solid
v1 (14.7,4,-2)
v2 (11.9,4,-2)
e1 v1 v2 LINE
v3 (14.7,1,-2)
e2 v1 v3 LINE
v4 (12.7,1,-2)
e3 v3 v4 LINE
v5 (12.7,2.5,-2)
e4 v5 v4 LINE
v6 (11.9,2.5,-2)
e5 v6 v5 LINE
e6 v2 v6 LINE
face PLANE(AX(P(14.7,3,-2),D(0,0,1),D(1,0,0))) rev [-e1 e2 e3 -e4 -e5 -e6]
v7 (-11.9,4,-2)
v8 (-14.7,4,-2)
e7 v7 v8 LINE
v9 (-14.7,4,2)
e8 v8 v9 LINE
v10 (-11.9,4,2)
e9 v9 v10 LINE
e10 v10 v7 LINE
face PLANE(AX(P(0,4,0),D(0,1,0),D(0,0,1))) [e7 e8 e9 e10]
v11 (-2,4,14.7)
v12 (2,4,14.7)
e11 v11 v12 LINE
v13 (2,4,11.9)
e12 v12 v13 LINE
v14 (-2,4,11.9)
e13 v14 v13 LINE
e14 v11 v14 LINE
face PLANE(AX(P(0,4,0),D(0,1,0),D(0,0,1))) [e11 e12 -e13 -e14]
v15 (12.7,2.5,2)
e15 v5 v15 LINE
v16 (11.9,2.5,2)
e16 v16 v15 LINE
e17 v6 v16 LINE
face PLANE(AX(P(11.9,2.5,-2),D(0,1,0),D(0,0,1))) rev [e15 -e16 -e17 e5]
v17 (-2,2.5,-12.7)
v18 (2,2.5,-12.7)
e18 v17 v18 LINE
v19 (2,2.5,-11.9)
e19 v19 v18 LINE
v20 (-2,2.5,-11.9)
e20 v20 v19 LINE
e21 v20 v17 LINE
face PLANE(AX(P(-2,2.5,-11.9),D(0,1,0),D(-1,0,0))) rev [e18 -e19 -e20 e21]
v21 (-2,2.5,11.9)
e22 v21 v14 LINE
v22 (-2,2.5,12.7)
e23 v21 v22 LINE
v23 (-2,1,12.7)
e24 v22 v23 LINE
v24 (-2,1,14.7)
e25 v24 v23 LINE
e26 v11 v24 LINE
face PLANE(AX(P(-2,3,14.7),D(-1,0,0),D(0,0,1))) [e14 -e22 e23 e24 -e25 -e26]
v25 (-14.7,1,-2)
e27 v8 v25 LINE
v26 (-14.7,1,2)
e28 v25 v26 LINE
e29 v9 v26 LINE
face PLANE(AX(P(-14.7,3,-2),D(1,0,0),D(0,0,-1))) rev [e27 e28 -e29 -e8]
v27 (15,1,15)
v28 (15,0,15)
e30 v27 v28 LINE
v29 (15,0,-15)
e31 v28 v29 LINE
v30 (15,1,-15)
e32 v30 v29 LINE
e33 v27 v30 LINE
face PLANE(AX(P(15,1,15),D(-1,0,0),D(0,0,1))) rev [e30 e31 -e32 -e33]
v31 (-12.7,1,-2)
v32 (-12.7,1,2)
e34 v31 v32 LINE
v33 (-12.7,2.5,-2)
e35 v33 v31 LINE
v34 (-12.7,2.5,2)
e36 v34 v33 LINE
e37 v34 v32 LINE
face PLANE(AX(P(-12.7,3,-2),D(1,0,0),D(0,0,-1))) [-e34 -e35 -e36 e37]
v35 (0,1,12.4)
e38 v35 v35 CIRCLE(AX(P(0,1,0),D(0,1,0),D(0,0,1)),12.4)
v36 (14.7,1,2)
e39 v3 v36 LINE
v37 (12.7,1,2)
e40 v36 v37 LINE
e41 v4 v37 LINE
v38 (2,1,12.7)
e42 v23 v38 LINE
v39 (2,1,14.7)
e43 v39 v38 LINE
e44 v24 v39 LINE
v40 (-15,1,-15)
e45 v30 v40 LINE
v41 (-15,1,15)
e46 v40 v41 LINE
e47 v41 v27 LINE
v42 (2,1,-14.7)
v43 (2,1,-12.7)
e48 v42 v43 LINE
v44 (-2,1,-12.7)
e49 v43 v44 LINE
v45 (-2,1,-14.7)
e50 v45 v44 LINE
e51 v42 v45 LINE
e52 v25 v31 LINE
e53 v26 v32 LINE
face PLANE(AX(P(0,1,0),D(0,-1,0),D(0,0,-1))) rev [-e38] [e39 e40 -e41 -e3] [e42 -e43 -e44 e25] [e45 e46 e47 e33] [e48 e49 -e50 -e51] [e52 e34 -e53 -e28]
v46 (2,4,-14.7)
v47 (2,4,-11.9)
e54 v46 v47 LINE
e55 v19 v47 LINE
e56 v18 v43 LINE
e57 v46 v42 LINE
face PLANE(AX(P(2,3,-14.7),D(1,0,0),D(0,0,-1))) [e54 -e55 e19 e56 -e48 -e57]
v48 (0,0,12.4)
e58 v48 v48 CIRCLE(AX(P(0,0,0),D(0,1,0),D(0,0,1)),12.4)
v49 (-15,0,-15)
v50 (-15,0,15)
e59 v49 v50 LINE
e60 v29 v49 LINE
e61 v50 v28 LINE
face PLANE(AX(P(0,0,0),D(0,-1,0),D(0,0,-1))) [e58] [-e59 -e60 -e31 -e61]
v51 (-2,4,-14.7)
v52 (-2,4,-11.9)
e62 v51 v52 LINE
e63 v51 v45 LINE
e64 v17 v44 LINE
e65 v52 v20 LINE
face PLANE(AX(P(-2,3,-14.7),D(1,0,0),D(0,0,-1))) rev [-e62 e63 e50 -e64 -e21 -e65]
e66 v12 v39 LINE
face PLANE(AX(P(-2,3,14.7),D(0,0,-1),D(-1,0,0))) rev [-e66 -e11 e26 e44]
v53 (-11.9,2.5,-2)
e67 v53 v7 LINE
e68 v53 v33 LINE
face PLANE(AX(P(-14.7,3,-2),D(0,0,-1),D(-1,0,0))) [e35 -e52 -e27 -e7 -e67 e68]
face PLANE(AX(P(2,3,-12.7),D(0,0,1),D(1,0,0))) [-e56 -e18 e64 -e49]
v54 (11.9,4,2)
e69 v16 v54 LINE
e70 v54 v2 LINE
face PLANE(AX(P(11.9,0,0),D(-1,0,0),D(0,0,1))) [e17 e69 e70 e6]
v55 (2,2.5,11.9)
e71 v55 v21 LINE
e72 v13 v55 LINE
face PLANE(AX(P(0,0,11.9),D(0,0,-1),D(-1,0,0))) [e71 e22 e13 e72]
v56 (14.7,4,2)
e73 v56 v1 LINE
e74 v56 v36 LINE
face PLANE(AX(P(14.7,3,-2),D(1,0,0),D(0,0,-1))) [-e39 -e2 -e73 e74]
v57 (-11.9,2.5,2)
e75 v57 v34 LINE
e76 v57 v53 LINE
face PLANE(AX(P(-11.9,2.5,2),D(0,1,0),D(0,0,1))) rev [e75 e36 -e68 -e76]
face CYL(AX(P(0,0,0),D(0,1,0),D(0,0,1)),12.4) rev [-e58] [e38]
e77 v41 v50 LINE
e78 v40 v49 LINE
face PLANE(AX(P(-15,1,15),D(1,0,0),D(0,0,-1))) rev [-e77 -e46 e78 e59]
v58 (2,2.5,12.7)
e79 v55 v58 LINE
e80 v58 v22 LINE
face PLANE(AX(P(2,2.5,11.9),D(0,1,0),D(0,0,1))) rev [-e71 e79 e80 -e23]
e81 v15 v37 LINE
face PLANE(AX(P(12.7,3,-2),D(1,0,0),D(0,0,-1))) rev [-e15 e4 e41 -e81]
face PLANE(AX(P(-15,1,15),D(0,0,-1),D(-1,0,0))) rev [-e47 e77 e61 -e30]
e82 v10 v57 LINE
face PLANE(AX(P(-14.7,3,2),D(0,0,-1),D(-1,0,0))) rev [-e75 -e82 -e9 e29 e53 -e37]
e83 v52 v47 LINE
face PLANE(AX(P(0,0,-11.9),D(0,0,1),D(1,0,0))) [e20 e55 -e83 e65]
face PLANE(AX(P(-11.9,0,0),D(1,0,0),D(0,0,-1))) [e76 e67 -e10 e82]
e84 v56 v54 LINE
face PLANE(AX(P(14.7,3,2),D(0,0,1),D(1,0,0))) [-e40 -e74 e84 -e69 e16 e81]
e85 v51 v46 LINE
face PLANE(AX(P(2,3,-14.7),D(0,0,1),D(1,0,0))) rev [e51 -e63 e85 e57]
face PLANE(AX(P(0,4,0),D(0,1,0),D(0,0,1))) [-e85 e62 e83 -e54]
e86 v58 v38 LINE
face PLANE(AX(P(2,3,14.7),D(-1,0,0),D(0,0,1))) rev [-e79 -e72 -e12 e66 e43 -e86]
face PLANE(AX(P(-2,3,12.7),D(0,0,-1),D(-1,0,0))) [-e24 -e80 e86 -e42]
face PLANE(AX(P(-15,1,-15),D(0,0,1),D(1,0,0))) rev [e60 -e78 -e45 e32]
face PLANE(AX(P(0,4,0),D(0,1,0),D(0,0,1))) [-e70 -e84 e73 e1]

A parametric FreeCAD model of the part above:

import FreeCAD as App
import Part
import Sketcher
from FreeCAD import Vector
Q = App.Units.Quantity

doc = App.newDocument("Part")
body = doc.addObject("PartDesign::Body", "Body")

# Sketch on XZ plane
sketch1 = body.newObject("Sketcher::SketchObject", "Sketch")
sketch1.AttachmentSupport = (doc.getObject("XZ_Plane"), [""])
sketch1.MapMode = "FlatFace"
sketch1.addGeometry([
    Part.LineSegment(Vector(-15, -15, 0), Vector(-15, 15, 0)),
    Part.LineSegment(Vector(-15, 15, 0), Vector(15, 15, 0)),
    Part.LineSegment(Vector(15, 15, 0), Vector(15, -15, 0)),
    Part.LineSegment(Vector(15, -15, 0), Vector(-15, -15, 0)),
], False)
sketch1.addConstraint([
    Sketcher.Constraint("Coincident", 0, 2, 1, 1),
    Sketcher.Constraint("Coincident", 1, 2, 2, 1),
    Sketcher.Constraint("Coincident", 2, 2, 3, 1),
    Sketcher.Constraint("Coincident", 3, 2, 0, 1),
    Sketcher.Constraint("Vertical", 0),
    Sketcher.Constraint("Horizontal", 1),
    Sketcher.Constraint("Vertical", 2),
    Sketcher.Constraint("Horizontal", 3),
    Sketcher.Constraint("Symmetric", 0, 2, 2, 2, -1, 1),
    Sketcher.Constraint("Equal", 3, 0),
    Sketcher.Constraint("DistanceX", 1, 1, 1, 2, Q("30 mm")),
])
pad1 = body.newObject("PartDesign::Pad", "Pad")
pad1.Profile = sketch1
pad1.Length = 1
pad1.Reversed = True

# Sketch on XZ plane
sketch2 = body.newObject("Sketcher::SketchObject", "Sketch001")
sketch2.AttachmentSupport = (doc.getObject("XZ_Plane"), [""])
sketch2.MapMode = "FlatFace"
sketch2.AttachmentOffset = App.Placement(Vector(0, 0, -1), App.Rotation())
sketch2.addGeometry(Part.Circle(Vector(0, 0, 0), Vector(0, 0, 1), 12), False)
sketch2.addConstraint([
    Sketcher.Constraint("Coincident", 0, 3, -1, 1),
    Sketcher.Constraint("Diameter", 0, Q("24.8 mm")),
])
pocket1 = body.newObject("PartDesign::Pocket", "Pocket")
pocket1.Profile = sketch2
pocket1.Type = "ThroughAll"
pocket1.Reversed = True

# Sketch on XZ plane
sketch3 = body.newObject("Sketcher::SketchObject", "Sketch002")
sketch3.AttachmentSupport = (doc.getObject("XZ_Plane"), [""])
sketch3.MapMode = "FlatFace"
sketch3.AttachmentOffset = App.Placement(Vector(0, 0, -1), App.Rotation())
sketch3.addGeometry([
    Part.LineSegment(Vector(12.7, -2, 0), Vector(12.7, 2, 0)),  # 0
    Part.LineSegment(Vector(12.7, 2, 0), Vector(14.7, 2, 0)),  # 1
    Part.LineSegment(Vector(14.7, 2, 0), Vector(14.7, -2, 0)),  # 2
    Part.LineSegment(Vector(14.7, -2, 0), Vector(12.7, -2, 0)),  # 3
    Part.LineSegment(Vector(-14.7, -2, 0), Vector(-14.7, 2, 0)),  # 4
    Part.LineSegment(Vector(-14.7, 2, 0), Vector(-12.7, 2, 0)),  # 5
    Part.LineSegment(Vector(-12.7, 2, 0), Vector(-12.7, -2, 0)),  # 6
    Part.LineSegment(Vector(-12.7, -2, 0), Vector(-14.7, -2, 0)),  # 7
    Part.LineSegment(Vector(-2, -14.7, 0), Vector(-2, -12.7, 0)),  # 8
    Part.LineSegment(Vector(-2, -12.7, 0), Vector(2, -12.7, 0)),  # 9
    Part.LineSegment(Vector(2, -12.7, 0), Vector(2, -14.7, 0)),  # 10
    Part.LineSegment(Vector(2, -14.7, 0), Vector(-2, -14.7, 0)),  # 11
    Part.LineSegment(Vector(-2, 12.7, 0), Vector(-2, 14.7, 0)),  # 12
    Part.LineSegment(Vector(-2, 14.7, 0), Vector(2, 14.7, 0)),  # 13
    Part.LineSegment(Vector(2, 14.7, 0), Vector(2, 12.7, 0)),  # 14
    Part.LineSegment(Vector(2, 12.7, 0), Vector(-2, 12.7, 0)),  # 15
], False)
sketch3.addConstraint([
    Sketcher.Constraint("Coincident", 0, 2, 1, 1),
    Sketcher.Constraint("Coincident", 1, 2, 2, 1),
    Sketcher.Constraint("Coincident", 2, 2, 3, 1),
    Sketcher.Constraint("Coincident", 3, 2, 0, 1),
    Sketcher.Constraint("Coincident", 4, 2, 5, 1),
    Sketcher.Constraint("Coincident", 5, 2, 6, 1),
    Sketcher.Constraint("Coincident", 6, 2, 7, 1),
    Sketcher.Constraint("Coincident", 7, 2, 4, 1),
    Sketcher.Constraint("Coincident", 8, 2, 9, 1),
    Sketcher.Constraint("Coincident", 9, 2, 10, 1),
    Sketcher.Constraint("Coincident", 10, 2, 11, 1),
    Sketcher.Constraint("Coincident", 11, 2, 8, 1),
    Sketcher.Constraint("Coincident", 12, 2, 13, 1),
    Sketcher.Constraint("Coincident", 13, 2, 14, 1),
    Sketcher.Constraint("Coincident", 14, 2, 15, 1),
    Sketcher.Constraint("Coincident", 15, 2, 12, 1),
    Sketcher.Constraint("Vertical", 0),
    Sketcher.Constraint("Horizontal", 1),
    Sketcher.Constraint("Vertical", 2),
    Sketcher.Constraint("Horizontal", 3),
    Sketcher.Constraint("Vertical", 4),
    Sketcher.Constraint("Horizontal", 5),
    Sketcher.Constraint("Vertical", 6),
    Sketcher.Constraint("Horizontal", 7),
    Sketcher.Constraint("Vertical", 8),
    Sketcher.Constraint("Horizontal", 9),
    Sketcher.Constraint("Vertical", 10),
    Sketcher.Constraint("Horizontal", 11),
    Sketcher.Constraint("Vertical", 12),
    Sketcher.Constraint("Horizontal", 13),
    Sketcher.Constraint("Vertical", 14),
    Sketcher.Constraint("Horizontal", 15),
    Sketcher.Constraint("Symmetric", 2, 2, 4, 2, -1, 1),
    Sketcher.Constraint("Symmetric", 0, 2, 6, 2, -1, 1),
    Sketcher.Constraint("Symmetric", 10, 2, 12, 2, -1, 1),
    Sketcher.Constraint("Symmetric", 8, 2, 14, 2, -1, 1),
    Sketcher.Constraint("Horizontal", 1, 2, 4, 2),
    Sketcher.Constraint("Vertical", 11, 2, 12, 2),
    Sketcher.Constraint("Equal", 15, 0),
    Sketcher.Constraint("Equal", 7, 8),
    Sketcher.Constraint("DistanceX", 1, 1, 1, 2, Q("2 mm")),
    Sketcher.Constraint("DistanceX", 9, 1, 9, 2, Q("4 mm")),
    Sketcher.Constraint("DistanceX", -1, 1, 0, 2, Q("12.7 mm")),
    Sketcher.Constraint("DistanceY", 8, 2, -1, 1, Q("12.7 mm")),
])
pad2 = body.newObject("PartDesign::Pad", "Pad001")
pad2.Profile = sketch3
pad2.Length = 2
pad2.Reversed = True

# Sketch on YZ plane
sketch4 = body.newObject("Sketcher::SketchObject", "Sketch003")
sketch4.AttachmentSupport = (doc.getObject("YZ_Plane"), [""])
sketch4.MapMode = "FlatFace"
sketch4.AttachmentOffset = App.Placement(Vector(0, 0, 12.7), App.Rotation())
sketch4.addGeometry([
    Part.LineSegment(Vector(3, -2, 0), Vector(2.5, -2, 0)),
    Part.LineSegment(Vector(2.5, -2, 0), Vector(2.5, 2, 0)),
    Part.LineSegment(Vector(2.5, 2, 0), Vector(3, 2, 0)),
    Part.LineSegment(Vector(3, 2, 0), Vector(3, -2, 0)),
], False)
sketch4.addConstraint([
    Sketcher.Constraint("Coincident", 0, 2, 1, 1),
    Sketcher.Constraint("Coincident", 1, 2, 2, 1),
    Sketcher.Constraint("Coincident", 2, 2, 3, 1),
    Sketcher.Constraint("Coincident", 3, 2, 0, 1),
    Sketcher.Constraint("Horizontal", 0),
    Sketcher.Constraint("Vertical", 1),
    Sketcher.Constraint("Horizontal", 2),
    Sketcher.Constraint("Vertical", 3),
    Sketcher.Constraint("DistanceY", 1, 1, 1, 2, Q("4 mm")),
    Sketcher.Constraint("DistanceX", 0, 2, 0, 1, Q("0.5 mm")),
    Sketcher.Constraint("DistanceY", 0, 2, -1, 1, Q("2 mm")),
    Sketcher.Constraint("DistanceX", -1, 1, 2, 2, Q("3 mm")),
])
pad3 = body.newObject("PartDesign::Pad", "Pad002")
pad3.Profile = sketch4
pad3.Length = 0.8
pad3.Reversed = True

# Sketch on XY plane
sketch5 = body.newObject("Sketcher::SketchObject", "Sketch004")
sketch5.AttachmentSupport = (doc.getObject("XY_Plane"), [""])
sketch5.MapMode = "FlatFace"
sketch5.AttachmentOffset = App.Placement(Vector(0, 0, 12.7), App.Rotation())
sketch5.addGeometry([
    Part.LineSegment(Vector(2, 3, 0), Vector(2, 2.5, 0)),
    Part.LineSegment(Vector(2, 2.5, 0), Vector(-2, 2.5, 0)),
    Part.LineSegment(Vector(-2, 2.5, 0), Vector(-2, 3, 0)),
    Part.LineSegment(Vector(-2, 3, 0), Vector(2, 3, 0)),
], False)
sketch5.addConstraint([
    Sketcher.Constraint("Coincident", 0, 2, 1, 1),
    Sketcher.Constraint("Coincident", 1, 2, 2, 1),
    Sketcher.Constraint("Coincident", 2, 2, 3, 1),
    Sketcher.Constraint("Coincident", 3, 2, 0, 1),
    Sketcher.Constraint("Vertical", 0),
    Sketcher.Constraint("Horizontal", 1),
    Sketcher.Constraint("Vertical", 2),
    Sketcher.Constraint("Horizontal", 3),
    Sketcher.Constraint("DistanceX", 1, 2, 1, 1, Q("4 mm")),
    Sketcher.Constraint("DistanceY", 0, 2, 0, 1, Q("0.5 mm")),
    Sketcher.Constraint("DistanceX", -1, 1, 0, 2, Q("2 mm")),
    Sketcher.Constraint("DistanceY", -1, 1, 2, 2, Q("3 mm")),
])
pad4 = body.newObject("PartDesign::Pad", "Pad003")
pad4.Profile = sketch5
pad4.Length = 0.8
pad4.Reversed = True

# Sketch on YZ plane
sketch6 = body.newObject("Sketcher::SketchObject", "Sketch005")
sketch6.AttachmentSupport = (doc.getObject("YZ_Plane"), [""])
sketch6.MapMode = "FlatFace"
sketch6.AttachmentOffset = App.Placement(Vector(0, 0, -12.7), App.Rotation())
sketch6.addGeometry([
    Part.LineSegment(Vector(3, 2, 0), Vector(2.5, 2, 0)),
    Part.LineSegment(Vector(2.5, 2, 0), Vector(2.5, -2, 0)),
    Part.LineSegment(Vector(2.5, -2, 0), Vector(3, -2, 0)),
    Part.LineSegment(Vector(3, -2, 0), Vector(3, 2, 0)),
], False)
sketch6.addConstraint([
    Sketcher.Constraint("Coincident", 0, 2, 1, 1),
    Sketcher.Constraint("Coincident", 1, 2, 2, 1),
    Sketcher.Constraint("Coincident", 2, 2, 3, 1),
    Sketcher.Constraint("Coincident", 3, 2, 0, 1),
    Sketcher.Constraint("Horizontal", 0),
    Sketcher.Constraint("Vertical", 1),
    Sketcher.Constraint("Horizontal", 2),
    Sketcher.Constraint("Vertical", 3),
    Sketcher.Constraint("DistanceY", 1, 2, 1, 1, Q("4 mm")),
    Sketcher.Constraint("DistanceX", 0, 2, 0, 1, Q("0.5 mm")),
    Sketcher.Constraint("DistanceY", -1, 1, 0, 2, Q("2 mm")),
    Sketcher.Constraint("DistanceX", -1, 1, 2, 2, Q("3 mm")),
])
pad5 = body.newObject("PartDesign::Pad", "Pad004")
pad5.Profile = sketch6
pad5.Length = 0.8

# Sketch on XY plane
sketch7 = body.newObject("Sketcher::SketchObject", "Sketch006")
sketch7.AttachmentSupport = (doc.getObject("XY_Plane"), [""])
sketch7.MapMode = "FlatFace"
sketch7.AttachmentOffset = App.Placement(Vector(0, 0, -12.7), App.Rotation())
sketch7.addGeometry([
    Part.LineSegment(Vector(-2, 3, 0), Vector(-2, 2.5, 0)),
    Part.LineSegment(Vector(-2, 2.5, 0), Vector(2, 2.5, 0)),
    Part.LineSegment(Vector(2, 2.5, 0), Vector(2, 3, 0)),
    Part.LineSegment(Vector(2, 3, 0), Vector(-2, 3, 0)),
], False)
sketch7.addConstraint([
    Sketcher.Constraint("Coincident", 0, 2, 1, 1),
    Sketcher.Constraint("Coincident", 1, 2, 2, 1),
    Sketcher.Constraint("Coincident", 2, 2, 3, 1),
    Sketcher.Constraint("Coincident", 3, 2, 0, 1),
    Sketcher.Constraint("Vertical", 0),
    Sketcher.Constraint("Horizontal", 1),
    Sketcher.Constraint("Vertical", 2),
    Sketcher.Constraint("Horizontal", 3),
    Sketcher.Constraint("DistanceX", 1, 1, 1, 2, Q("4 mm")),
    Sketcher.Constraint("DistanceY", 0, 2, 0, 1, Q("0.5 mm")),
    Sketcher.Constraint("DistanceX", 0, 2, -1, 1, Q("2 mm")),
    Sketcher.Constraint("DistanceY", -1, 1, 2, 2, Q("3 mm")),
])
pad6 = body.newObject("PartDesign::Pad", "Pad005")
pad6.Profile = sketch7
pad6.Length = 0.8

# Sketch on XZ plane
sketch8 = body.newObject("Sketcher::SketchObject", "Sketch007")
sketch8.AttachmentSupport = (doc.getObject("XZ_Plane"), [""])
sketch8.MapMode = "FlatFace"
sketch8.AttachmentOffset = App.Placement(Vector(0, 0, -3), App.Rotation())
sketch8.addGeometry([
    Part.LineSegment(Vector(11.9, -2, 0), Vector(11.9, 2, 0)),  # 0
    Part.LineSegment(Vector(11.9, 2, 0), Vector(14.7, 2, 0)),  # 1
    Part.LineSegment(Vector(14.7, 2, 0), Vector(14.7, -2, 0)),  # 2
    Part.LineSegment(Vector(14.7, -2, 0), Vector(11.9, -2, 0)),  # 3
    Part.LineSegment(Vector(-14.7, -2, 0), Vector(-14.7, 2, 0)),  # 4
    Part.LineSegment(Vector(-14.7, 2, 0), Vector(-11.9, 2, 0)),  # 5
    Part.LineSegment(Vector(-11.9, 2, 0), Vector(-11.9, -2, 0)),  # 6
    Part.LineSegment(Vector(-11.9, -2, 0), Vector(-14.7, -2, 0)),  # 7
    Part.LineSegment(Vector(-2, 11.9, 0), Vector(-2, 14.7, 0)),  # 8
    Part.LineSegment(Vector(-2, 14.7, 0), Vector(2, 14.7, 0)),  # 9
    Part.LineSegment(Vector(2, 14.7, 0), Vector(2, 11.9, 0)),  # 10
    Part.LineSegment(Vector(2, 11.9, 0), Vector(-2, 11.9, 0)),  # 11
    Part.LineSegment(Vector(-2, -14.7, 0), Vector(-2, -11.9, 0)),  # 12
    Part.LineSegment(Vector(-2, -11.9, 0), Vector(2, -11.9, 0)),  # 13
    Part.LineSegment(Vector(2, -11.9, 0), Vector(2, -14.7, 0)),  # 14
    Part.LineSegment(Vector(2, -14.7, 0), Vector(-2, -14.7, 0)),  # 15
], False)
sketch8.addConstraint([
    Sketcher.Constraint("Coincident", 0, 2, 1, 1),
    Sketcher.Constraint("Coincident", 1, 2, 2, 1),
    Sketcher.Constraint("Coincident", 2, 2, 3, 1),
    Sketcher.Constraint("Coincident", 3, 2, 0, 1),
    Sketcher.Constraint("Coincident", 4, 2, 5, 1),
    Sketcher.Constraint("Coincident", 5, 2, 6, 1),
    Sketcher.Constraint("Coincident", 6, 2, 7, 1),
    Sketcher.Constraint("Coincident", 7, 2, 4, 1),
    Sketcher.Constraint("Coincident", 8, 2, 9, 1),
    Sketcher.Constraint("Coincident", 9, 2, 10, 1),
    Sketcher.Constraint("Coincident", 10, 2, 11, 1),
    Sketcher.Constraint("Coincident", 11, 2, 8, 1),
    Sketcher.Constraint("Coincident", 12, 2, 13, 1),
    Sketcher.Constraint("Coincident", 13, 2, 14, 1),
    Sketcher.Constraint("Coincident", 14, 2, 15, 1),
    Sketcher.Constraint("Coincident", 15, 2, 12, 1),
    Sketcher.Constraint("Vertical", 0),
    Sketcher.Constraint("Horizontal", 1),
    Sketcher.Constraint("Vertical", 2),
    Sketcher.Constraint("Horizontal", 3),
    Sketcher.Constraint("Vertical", 4),
    Sketcher.Constraint("Horizontal", 5),
    Sketcher.Constraint("Vertical", 6),
    Sketcher.Constraint("Horizontal", 7),
    Sketcher.Constraint("Vertical", 8),
    Sketcher.Constraint("Horizontal", 9),
    Sketcher.Constraint("Vertical", 10),
    Sketcher.Constraint("Horizontal", 11),
    Sketcher.Constraint("Vertical", 12),
    Sketcher.Constraint("Horizontal", 13),
    Sketcher.Constraint("Vertical", 14),
    Sketcher.Constraint("Horizontal", 15),
    Sketcher.Constraint("Symmetric", 2, 2, 4, 2, -1, 1),
    Sketcher.Constraint("Symmetric", 0, 2, 6, 2, -1, 1),
    Sketcher.Constraint("Symmetric", 10, 2, 12, 2, -1, 1),
    Sketcher.Constraint("Symmetric", 8, 2, 14, 2, -1, 1),
    Sketcher.Constraint("Horizontal", 1, 2, 4, 2),
    Sketcher.Constraint("Vertical", 11, 2, 12, 2),
    Sketcher.Constraint("Equal", 15, 0),
    Sketcher.Constraint("Equal", 7, 8),
    Sketcher.Constraint("DistanceX", 9, 1, 9, 2, Q("4 mm")),
    Sketcher.Constraint("DistanceX", 1, 1, 1, 2, Q("2.8 mm")),
    Sketcher.Constraint("DistanceX", -1, 1, 0, 2, Q("11.9 mm")),
    Sketcher.Constraint("DistanceY", -1, 1, 8, 2, Q("14.7 mm")),
])
pad7 = body.newObject("PartDesign::Pad", "Pad006")
pad7.Profile = sketch8
pad7.Length = 1
pad7.Reversed = True

doc.recompute()
